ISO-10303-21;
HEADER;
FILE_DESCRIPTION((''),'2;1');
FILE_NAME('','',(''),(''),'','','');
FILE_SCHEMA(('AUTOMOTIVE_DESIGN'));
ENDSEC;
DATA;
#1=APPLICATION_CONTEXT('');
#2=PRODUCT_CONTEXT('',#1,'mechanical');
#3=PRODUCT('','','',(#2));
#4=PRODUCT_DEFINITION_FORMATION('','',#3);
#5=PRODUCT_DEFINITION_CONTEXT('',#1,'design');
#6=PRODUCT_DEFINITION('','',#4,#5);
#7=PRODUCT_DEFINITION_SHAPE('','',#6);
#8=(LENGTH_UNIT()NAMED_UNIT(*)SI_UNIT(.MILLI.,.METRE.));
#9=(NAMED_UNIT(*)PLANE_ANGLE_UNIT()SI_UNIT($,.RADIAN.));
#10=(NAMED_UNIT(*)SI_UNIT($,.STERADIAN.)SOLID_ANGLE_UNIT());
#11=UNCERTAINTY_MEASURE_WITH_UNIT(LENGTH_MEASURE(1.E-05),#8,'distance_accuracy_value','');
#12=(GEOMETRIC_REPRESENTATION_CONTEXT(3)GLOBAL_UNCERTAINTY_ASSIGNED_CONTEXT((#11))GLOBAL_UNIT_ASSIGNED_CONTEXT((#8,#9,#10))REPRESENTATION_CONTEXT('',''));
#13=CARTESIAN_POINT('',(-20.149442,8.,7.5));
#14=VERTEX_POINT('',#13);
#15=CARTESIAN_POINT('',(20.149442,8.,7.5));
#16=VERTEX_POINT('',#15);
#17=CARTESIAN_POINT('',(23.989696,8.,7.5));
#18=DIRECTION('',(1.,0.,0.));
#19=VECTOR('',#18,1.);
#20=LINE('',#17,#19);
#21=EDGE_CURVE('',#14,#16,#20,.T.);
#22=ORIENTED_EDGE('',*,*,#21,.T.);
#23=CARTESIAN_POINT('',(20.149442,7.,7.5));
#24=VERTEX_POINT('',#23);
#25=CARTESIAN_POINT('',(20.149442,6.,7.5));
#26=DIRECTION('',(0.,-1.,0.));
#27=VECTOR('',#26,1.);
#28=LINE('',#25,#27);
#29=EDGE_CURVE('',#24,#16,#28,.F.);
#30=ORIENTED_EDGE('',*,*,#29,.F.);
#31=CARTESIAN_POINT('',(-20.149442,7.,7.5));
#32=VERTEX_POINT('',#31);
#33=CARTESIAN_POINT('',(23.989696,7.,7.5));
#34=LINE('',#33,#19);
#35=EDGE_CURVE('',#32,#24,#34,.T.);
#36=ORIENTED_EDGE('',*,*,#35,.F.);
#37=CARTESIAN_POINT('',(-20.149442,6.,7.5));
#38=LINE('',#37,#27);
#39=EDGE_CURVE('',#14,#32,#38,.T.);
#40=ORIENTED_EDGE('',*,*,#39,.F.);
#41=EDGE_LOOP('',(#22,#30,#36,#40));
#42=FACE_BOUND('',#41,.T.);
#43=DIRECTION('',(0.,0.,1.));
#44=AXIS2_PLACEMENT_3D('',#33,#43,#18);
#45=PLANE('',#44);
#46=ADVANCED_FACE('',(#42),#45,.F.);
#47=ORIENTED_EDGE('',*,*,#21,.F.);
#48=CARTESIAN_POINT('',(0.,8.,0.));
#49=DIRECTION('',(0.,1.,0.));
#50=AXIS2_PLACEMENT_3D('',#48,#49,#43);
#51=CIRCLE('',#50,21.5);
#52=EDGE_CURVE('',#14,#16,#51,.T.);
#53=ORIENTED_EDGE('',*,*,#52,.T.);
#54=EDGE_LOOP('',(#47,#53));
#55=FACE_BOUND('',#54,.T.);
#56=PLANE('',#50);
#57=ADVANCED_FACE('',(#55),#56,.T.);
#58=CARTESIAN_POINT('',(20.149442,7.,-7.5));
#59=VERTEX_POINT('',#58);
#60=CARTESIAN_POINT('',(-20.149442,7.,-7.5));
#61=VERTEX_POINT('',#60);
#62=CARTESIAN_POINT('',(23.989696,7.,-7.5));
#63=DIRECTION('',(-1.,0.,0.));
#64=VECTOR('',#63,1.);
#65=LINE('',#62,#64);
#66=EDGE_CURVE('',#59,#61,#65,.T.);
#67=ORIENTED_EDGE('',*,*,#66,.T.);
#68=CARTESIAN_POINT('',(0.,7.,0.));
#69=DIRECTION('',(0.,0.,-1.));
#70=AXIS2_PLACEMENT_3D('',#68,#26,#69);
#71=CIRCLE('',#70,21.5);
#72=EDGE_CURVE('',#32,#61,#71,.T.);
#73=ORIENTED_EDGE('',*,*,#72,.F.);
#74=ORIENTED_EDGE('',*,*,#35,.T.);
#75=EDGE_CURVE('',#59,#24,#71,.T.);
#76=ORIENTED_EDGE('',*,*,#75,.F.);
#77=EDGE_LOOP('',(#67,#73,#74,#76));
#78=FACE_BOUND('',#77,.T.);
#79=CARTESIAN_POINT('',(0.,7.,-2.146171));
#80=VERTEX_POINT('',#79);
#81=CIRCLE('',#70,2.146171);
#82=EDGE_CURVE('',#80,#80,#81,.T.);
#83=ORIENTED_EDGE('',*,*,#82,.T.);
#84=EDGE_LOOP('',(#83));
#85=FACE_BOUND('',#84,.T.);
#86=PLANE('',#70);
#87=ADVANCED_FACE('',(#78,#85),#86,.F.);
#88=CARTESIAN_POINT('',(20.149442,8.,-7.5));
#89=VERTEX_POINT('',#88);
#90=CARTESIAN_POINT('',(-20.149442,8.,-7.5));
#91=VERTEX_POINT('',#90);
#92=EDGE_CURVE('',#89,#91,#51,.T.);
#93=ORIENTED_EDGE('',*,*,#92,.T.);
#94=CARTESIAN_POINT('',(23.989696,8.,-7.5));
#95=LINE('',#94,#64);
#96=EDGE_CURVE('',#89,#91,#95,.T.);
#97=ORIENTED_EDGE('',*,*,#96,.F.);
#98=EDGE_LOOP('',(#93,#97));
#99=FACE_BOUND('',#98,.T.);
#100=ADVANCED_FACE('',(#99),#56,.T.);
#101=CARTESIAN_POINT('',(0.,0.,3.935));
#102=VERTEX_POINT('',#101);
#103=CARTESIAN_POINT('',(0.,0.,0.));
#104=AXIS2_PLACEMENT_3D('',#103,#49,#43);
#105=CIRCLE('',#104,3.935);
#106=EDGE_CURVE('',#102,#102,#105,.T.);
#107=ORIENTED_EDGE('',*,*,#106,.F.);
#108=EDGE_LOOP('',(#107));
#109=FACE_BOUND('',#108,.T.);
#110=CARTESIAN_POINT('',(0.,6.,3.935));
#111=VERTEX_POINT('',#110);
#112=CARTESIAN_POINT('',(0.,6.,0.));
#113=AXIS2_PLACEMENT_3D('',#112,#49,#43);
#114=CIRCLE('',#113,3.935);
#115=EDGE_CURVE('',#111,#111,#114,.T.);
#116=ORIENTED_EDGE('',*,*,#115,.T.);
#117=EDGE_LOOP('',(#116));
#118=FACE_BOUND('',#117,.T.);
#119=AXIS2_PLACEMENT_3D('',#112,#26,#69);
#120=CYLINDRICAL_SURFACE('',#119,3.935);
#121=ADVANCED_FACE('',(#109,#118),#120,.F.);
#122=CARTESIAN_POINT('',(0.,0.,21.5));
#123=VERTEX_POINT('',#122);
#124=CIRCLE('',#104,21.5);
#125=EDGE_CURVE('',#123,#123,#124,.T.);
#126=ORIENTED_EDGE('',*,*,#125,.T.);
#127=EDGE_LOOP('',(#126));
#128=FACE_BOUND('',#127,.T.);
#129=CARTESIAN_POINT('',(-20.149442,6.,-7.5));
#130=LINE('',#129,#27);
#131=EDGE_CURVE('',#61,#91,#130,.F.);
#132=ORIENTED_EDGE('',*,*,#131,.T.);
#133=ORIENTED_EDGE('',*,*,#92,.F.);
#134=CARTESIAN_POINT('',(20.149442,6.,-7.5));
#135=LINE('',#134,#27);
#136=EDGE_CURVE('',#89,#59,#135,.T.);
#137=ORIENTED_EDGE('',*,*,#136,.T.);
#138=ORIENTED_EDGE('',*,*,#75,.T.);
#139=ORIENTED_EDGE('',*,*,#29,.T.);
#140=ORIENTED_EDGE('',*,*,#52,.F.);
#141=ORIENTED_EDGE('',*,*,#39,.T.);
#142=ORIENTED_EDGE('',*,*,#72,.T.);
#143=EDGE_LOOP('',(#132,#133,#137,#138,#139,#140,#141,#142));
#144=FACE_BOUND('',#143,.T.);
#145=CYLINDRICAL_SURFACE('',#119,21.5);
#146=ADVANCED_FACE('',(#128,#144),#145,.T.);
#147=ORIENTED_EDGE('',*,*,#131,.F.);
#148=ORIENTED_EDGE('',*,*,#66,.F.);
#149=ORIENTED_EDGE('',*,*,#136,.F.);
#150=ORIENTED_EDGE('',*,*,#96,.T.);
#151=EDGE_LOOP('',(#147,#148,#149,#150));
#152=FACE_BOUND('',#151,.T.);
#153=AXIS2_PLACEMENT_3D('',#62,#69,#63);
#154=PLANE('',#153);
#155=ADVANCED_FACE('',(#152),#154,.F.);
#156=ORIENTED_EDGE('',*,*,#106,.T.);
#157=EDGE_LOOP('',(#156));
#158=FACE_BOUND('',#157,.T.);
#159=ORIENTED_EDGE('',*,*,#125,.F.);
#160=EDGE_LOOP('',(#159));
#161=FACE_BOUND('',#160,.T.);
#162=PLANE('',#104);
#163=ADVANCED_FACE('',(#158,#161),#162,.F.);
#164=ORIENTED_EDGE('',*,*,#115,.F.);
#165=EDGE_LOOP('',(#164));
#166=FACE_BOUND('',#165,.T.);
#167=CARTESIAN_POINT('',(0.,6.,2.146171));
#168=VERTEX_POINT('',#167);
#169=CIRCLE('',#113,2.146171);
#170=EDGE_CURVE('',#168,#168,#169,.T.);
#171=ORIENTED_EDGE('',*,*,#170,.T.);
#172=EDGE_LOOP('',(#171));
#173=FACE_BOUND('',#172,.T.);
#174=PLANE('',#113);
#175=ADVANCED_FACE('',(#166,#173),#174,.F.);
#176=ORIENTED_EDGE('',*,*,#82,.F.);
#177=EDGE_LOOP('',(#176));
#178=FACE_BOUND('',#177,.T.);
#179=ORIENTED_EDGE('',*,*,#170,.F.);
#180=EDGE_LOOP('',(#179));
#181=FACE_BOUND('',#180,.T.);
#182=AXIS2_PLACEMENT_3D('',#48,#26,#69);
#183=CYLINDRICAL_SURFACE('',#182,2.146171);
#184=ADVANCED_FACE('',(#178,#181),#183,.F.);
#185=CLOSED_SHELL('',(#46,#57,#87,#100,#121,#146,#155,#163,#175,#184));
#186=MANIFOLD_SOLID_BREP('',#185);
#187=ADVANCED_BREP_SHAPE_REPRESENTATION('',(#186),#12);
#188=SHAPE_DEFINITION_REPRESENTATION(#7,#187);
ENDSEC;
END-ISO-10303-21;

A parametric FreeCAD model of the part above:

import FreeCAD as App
import Part
import Sketcher
from FreeCAD import Vector
Q = App.Units.Quantity

doc = App.newDocument("Part")
body = doc.addObject("PartDesign::Body", "Body")

# Sketch on XZ plane
sketch1 = body.newObject("Sketcher::SketchObject", "Sketch")
sketch1.AttachmentSupport = (doc.getObject("XZ_Plane"), [""])
sketch1.MapMode = "FlatFace"
sketch1.addGeometry(Part.Circle(Vector(0, 0, 0), Vector(0, 0, 1), 21.5), False)
sketch1.addGeometry(Part.Circle(Vector(0, 0, 0), Vector(0, 0, 1), 3.9), False)
sketch1.addConstraint(Sketcher.Constraint("Coincident", 0, 3, -1, 1))
sketch1.addConstraint(Sketcher.Constraint("Coincident", 1, 3, -1, 1))
sketch1.addConstraint(Sketcher.Constraint("Diameter", 0, Q("43 mm")))
sketch1.addConstraint(Sketcher.Constraint("Diameter", 1, Q("7.87 mm")))
pad1 = body.newObject("PartDesign::Pad", "Pad")
pad1.Profile = sketch1
pad1.Length = 6
pad1.Reversed = True

# Sketch on XZ plane
sketch2 = body.newObject("Sketcher::SketchObject", "Sketch001")
sketch2.AttachmentSupport = (doc.getObject("XZ_Plane"), [""])
sketch2.MapMode = "FlatFace"
sketch2.AttachmentOffset = App.Placement(Vector(0, 0, -6), App.Rotation())
sketch2.addGeometry(Part.Circle(Vector(0, 0, 0), Vector(0, 0, 1), 21.5), False)
sketch2.addGeometry(Part.Circle(Vector(0, 0, 0), Vector(0, 0, 1), 2.1), False)
sketch2.addConstraint(Sketcher.Constraint("Coincident", 0, 3, -1, 1))
sketch2.addConstraint(Sketcher.Constraint("Coincident", 1, 3, -1, 1))
sketch2.addConstraint(Sketcher.Constraint("Diameter", 0, Q("43 mm")))
sketch2.addConstraint(Sketcher.Constraint("Diameter", 1, Q("4.292342 mm")))
pad2 = body.newObject("PartDesign::Pad", "Pad001")
pad2.Profile = sketch2
pad2.Length = 2
pad2.Reversed = True

# Sketch on XZ plane
sketch3 = body.newObject("Sketcher::SketchObject", "Sketch002")
sketch3.AttachmentSupport = (doc.getObject("XZ_Plane"), [""])
sketch3.MapMode = "FlatFace"
sketch3.AttachmentOffset = App.Placement(Vector(0, 0, -8), App.Rotation())
sketch3.addGeometry(Part.LineSegment(Vector(-24, -8, 0), Vector(-24, 8, 0)), False)
sketch3.addGeometry(Part.LineSegment(Vector(-24, 8, 0), Vector(24, 8, 0)), False)
sketch3.addGeometry(Part.LineSegment(Vector(24, 8, 0), Vector(24, -8, 0)), False)
sketch3.addGeometry(Part.LineSegment(Vector(24, -8, 0), Vector(-24, -8, 0)), False)
sketch3.addConstraint(Sketcher.Constraint("Coincident", 0, 2, 1, 1))
sketch3.addConstraint(Sketcher.Constraint("Coincident", 1, 2, 2, 1))
sketch3.addConstraint(Sketcher.Constraint("Coincident", 2, 2, 3, 1))
sketch3.addConstraint(Sketcher.Constraint("Coincident", 3, 2, 0, 1))
sketch3.addConstraint(Sketcher.Constraint("Vertical", 0))
sketch3.addConstraint(Sketcher.Constraint("Horizontal", 1))
sketch3.addConstraint(Sketcher.Constraint("Vertical", 2))
sketch3.addConstraint(Sketcher.Constraint("Horizontal", 3))
sketch3.addConstraint(Sketcher.Constraint("Symmetric", 0, 2, 2, 2, -1, 1))
sketch3.addConstraint(Sketcher.Constraint("DistanceY", 0, 1, 0, 2, Q("15 mm")))
sketch3.addConstraint(Sketcher.Constraint("DistanceX", 1, 1, 1, 2, Q("47.979392 mm")))
pocket1 = body.newObject("PartDesign::Pocket", "Pocket")
pocket1.Profile = sketch3
pocket1.Length = 1
pocket1.Reversed = True

doc.recompute()
